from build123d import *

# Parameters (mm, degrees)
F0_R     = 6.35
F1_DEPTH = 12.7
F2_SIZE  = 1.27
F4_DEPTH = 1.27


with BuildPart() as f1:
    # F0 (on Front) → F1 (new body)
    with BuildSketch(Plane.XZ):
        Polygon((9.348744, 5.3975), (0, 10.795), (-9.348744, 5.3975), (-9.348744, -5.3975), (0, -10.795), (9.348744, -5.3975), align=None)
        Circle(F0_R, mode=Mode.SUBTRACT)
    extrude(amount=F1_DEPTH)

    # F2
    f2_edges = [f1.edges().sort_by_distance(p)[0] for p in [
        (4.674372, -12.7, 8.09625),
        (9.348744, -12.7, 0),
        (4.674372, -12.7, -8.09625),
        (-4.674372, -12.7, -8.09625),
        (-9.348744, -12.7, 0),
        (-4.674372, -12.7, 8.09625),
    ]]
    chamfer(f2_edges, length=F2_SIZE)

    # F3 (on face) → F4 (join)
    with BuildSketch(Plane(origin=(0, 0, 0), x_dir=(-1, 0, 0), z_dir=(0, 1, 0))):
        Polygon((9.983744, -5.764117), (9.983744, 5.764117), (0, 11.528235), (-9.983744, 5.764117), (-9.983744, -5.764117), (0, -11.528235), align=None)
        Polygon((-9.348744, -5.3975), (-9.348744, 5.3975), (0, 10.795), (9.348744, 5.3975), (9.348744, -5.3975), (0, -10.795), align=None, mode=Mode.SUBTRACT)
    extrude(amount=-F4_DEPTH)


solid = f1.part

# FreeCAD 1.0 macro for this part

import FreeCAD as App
import Part
import Sketcher

V = App.Vector
Q = App.Units.Quantity


def edges_at(feature, points):
    """Names of the edges that pass closest to the given points."""
    edges = feature.Shape.Edges
    near = lambda p: min(range(len(edges)), key=lambda i: edges[i].distToShape(Part.Vertex(*p))[0])
    return sorted({f"Edge{near(p) + 1}" for p in points})

doc = App.newDocument("Part")
body = doc.addObject("PartDesign::Body", "Body")

sketch1 = body.newObject("Sketcher::SketchObject", "Sketch")
sketch1.AttachmentSupport = (doc.getObject("XZ_Plane"), [""])
sketch1.MapMode = "FlatFace"
sketch1.addGeometry([
    Part.LineSegment(V(9, 5, 0), V(0, 11, 0)),
    Part.LineSegment(V(0, 11, 0), V(-9, 5, 0)),
    Part.LineSegment(V(-9, 5, 0), V(-9, -5, 0)),
    Part.LineSegment(V(-9, -5, 0), V(0, -11, 0)),
    Part.LineSegment(V(0, -11, 0), V(9, -5, 0)),
    Part.LineSegment(V(9, -5, 0), V(9, 5, 0)),
    Part.Circle(V(0, 0, 0), V(0, 0, 1), 6),
], False)
sketch1.addConstraint([
    Sketcher.Constraint("Coincident", 0, 2, 1, 1),
    Sketcher.Constraint("Coincident", 1, 2, 2, 1),
    Sketcher.Constraint("Coincident", 2, 2, 3, 1),
    Sketcher.Constraint("Coincident", 3, 2, 4, 1),
    Sketcher.Constraint("Coincident", 4, 2, 5, 1),
    Sketcher.Constraint("Coincident", 5, 2, 0, 1),
    Sketcher.Constraint("Vertical", 2),
    Sketcher.Constraint("Vertical", 5),
    Sketcher.Constraint("Coincident", 6, 3, -1, 1),
    Sketcher.Constraint("Symmetric", 0, 2, 3, 2, -1, 1),
    Sketcher.Constraint("Symmetric", 1, 2, 4, 2, -1, 1),
    Sketcher.Constraint("PointOnObject", 0, 2, -2),
    Sketcher.Constraint("Parallel", 0, 3),
    Sketcher.Constraint("Horizontal", 2, 2, 4, 2),
    Sketcher.Constraint("Diameter", 6, Q("0.5 in")),
    Sketcher.Constraint("Angle", 0, Q("149.999999 deg")),
    Sketcher.Constraint("DistanceY", 2, 2, 2, 1, Q("0.425 in")),
    Sketcher.Constraint("DistanceY", 3, 2, 0, 2, Q("0.85 in")),
])
pad1 = body.newObject("PartDesign::Pad", "Pad")
pad1.Profile = sketch1
pad1.Length = Q("0.5 in")
doc.recompute()

chamfer = body.newObject("PartDesign::Chamfer", "Chamfer")
chamfer.Base = (pad1, edges_at(pad1, [
    (4.674, -12.7, 8.096),
    (9.349, -12.7, 0),
    (4.674, -12.7, -8.096),
    (-4.674, -12.7, -8.096),
    (-9.349, -12.7, 0),
    (-4.674, -12.7, 8.096),
]))
chamfer.Size = Q("0.05 in")

sketch2 = body.newObject("Sketcher::SketchObject", "Sketch001")
sketch2.AttachmentSupport = (doc.getObject("XZ_Plane"), [""])
sketch2.MapMode = "FlatFace"
sketch2.addGeometry([
    Part.LineSegment(V(-10, -6, 0), V(-10, 6, 0)),
    Part.LineSegment(V(-10, 6, 0), V(0, 12, 0)),
    Part.LineSegment(V(0, 12, 0), V(10, 6, 0)),
    Part.LineSegment(V(10, 6, 0), V(10, -6, 0)),
    Part.LineSegment(V(10, -6, 0), V(0, -12, 0)),
    Part.LineSegment(V(0, -12, 0), V(-10, -6, 0)),
    Part.LineSegment(V(0, -11, 0), V(9, -5, 0)),
    Part.LineSegment(V(9, -5, 0), V(9, 5, 0)),
    Part.LineSegment(V(9, 5, 0), V(0, 11, 0)),
    Part.LineSegment(V(0, 11, 0), V(-9, 5, 0)),
    Part.LineSegment(V(-9, 5, 0), V(-9, -5, 0)),
    Part.LineSegment(V(-9, -5, 0), V(0, -11, 0)),
], False)
sketch2.addConstraint([
    Sketcher.Constraint("Coincident", 0, 2, 1, 1),
    Sketcher.Constraint("Coincident", 1, 2, 2, 1),
    Sketcher.Constraint("Coincident", 2, 2, 3, 1),
    Sketcher.Constraint("Coincident", 3, 2, 4, 1),
    Sketcher.Constraint("Coincident", 4, 2, 5, 1),
    Sketcher.Constraint("Coincident", 5, 2, 0, 1),
    Sketcher.Constraint("Coincident", 6, 2, 7, 1),
    Sketcher.Constraint("Coincident", 7, 2, 8, 1),
    Sketcher.Constraint("Coincident", 8, 2, 9, 1),
    Sketcher.Constraint("Coincident", 9, 2, 10, 1),
    Sketcher.Constraint("Coincident", 10, 2, 11, 1),
    Sketcher.Constraint("Coincident", 11, 2, 6, 1),
    Sketcher.Constraint("Vertical", 0),
    Sketcher.Constraint("Vertical", 3),
    Sketcher.Constraint("Vertical", 7),
    Sketcher.Constraint("Vertical", 10),
    Sketcher.Constraint("Symmetric", 0, 2, 3, 2, -1, 1),
    Sketcher.Constraint("Symmetric", 1, 2, 4, 2, -1, 1),
    Sketcher.Constraint("Symmetric", 6, 2, 9, 2, -1, 1),
    Sketcher.Constraint("Symmetric", 8, 2, 11, 2, -1, 1),
    Sketcher.Constraint("PointOnObject", 1, 2, -2),
    Sketcher.Constraint("PointOnObject", 8, 2, -2),
    Sketcher.Constraint("Parallel", 2, 5),
    Sketcher.Constraint("Parallel", 4, 6),
    Sketcher.Constraint("Parallel", 5, 8),
    Sketcher.Constraint("Parallel", 8, 11),
    Sketcher.Constraint("Horizontal", 0, 2, 2, 2),
    Sketcher.Constraint("Angle", 1, Q("30.000003 deg")),
    Sketcher.Constraint("DistanceY", 7, 1, 7, 2, Q("0.425 in")),
    Sketcher.Constraint("Distance", 6, Q("0.425 in")),
    Sketcher.Constraint("DistanceX", 6, 2, 3, 2, Q("0.025 in")),
    Sketcher.Constraint("DistanceY", 0, 1, 0, 2, Q("11.528234 mm")),
])
pad2 = body.newObject("PartDesign::Pad", "Pad001")
pad2.Profile = sketch2
pad2.Length = Q("0.05 in")

doc.recompute()
